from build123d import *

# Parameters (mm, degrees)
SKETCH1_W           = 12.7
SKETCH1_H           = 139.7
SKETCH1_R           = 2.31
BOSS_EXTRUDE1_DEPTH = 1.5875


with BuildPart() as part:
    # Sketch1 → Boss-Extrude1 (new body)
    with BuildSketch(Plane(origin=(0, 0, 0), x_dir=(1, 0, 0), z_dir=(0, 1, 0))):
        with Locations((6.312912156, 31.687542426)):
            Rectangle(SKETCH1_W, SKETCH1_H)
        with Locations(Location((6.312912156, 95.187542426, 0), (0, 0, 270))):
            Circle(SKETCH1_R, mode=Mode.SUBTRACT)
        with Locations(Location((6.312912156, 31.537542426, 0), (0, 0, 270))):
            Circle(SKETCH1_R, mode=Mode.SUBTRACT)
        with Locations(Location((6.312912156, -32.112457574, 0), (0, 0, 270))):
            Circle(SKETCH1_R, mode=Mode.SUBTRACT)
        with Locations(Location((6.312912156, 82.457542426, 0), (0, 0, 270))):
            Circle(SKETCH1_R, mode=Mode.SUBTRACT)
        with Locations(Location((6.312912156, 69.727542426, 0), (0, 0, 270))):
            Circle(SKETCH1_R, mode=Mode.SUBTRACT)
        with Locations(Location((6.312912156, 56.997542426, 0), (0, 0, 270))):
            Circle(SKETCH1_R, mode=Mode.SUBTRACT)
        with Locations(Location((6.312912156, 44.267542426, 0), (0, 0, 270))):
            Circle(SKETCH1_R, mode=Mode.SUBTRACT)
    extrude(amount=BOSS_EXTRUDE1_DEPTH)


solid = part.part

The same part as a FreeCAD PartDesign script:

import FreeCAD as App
import Part
import Sketcher

V = App.Vector
Q = App.Units.Quantity


def add_polygon(sketch, points):
    """Adds a closed chain of lines whose ends are joined by coincident constraints."""
    first, n = sketch.GeometryCount, len(points)
    for a, b in zip(points, points[1:] + points[:1]):
        sketch.addGeometry(Part.LineSegment(App.Vector(*a, 0), App.Vector(*b, 0)), False)
    for i in range(n):
        sketch.addConstraint(Sketcher.Constraint("Coincident", first + i, 2, first + (i + 1) % n, 1))

doc = App.newDocument("Part")
body = doc.addObject("PartDesign::Body", "Body")

sketch1 = body.newObject("Sketcher::SketchObject", "Sketch")
sketch1.AttachmentSupport = (doc.getObject("XZ_Plane"), [""])
sketch1.MapMode = "FlatFace"
add_polygon(sketch1, [(0, -101.5), (0, 38.2), (12.7, 38.2), (12.7, -101.5)])
sketch1.addGeometry(Part.Circle(V(6.3, 32.1, 0), V(0, 0, 1), 2.3), False)
sketch1.addGeometry(Part.Circle(V(6.3, -31.5, 0), V(0, 0, 1), 2.3), False)
sketch1.addGeometry(Part.Circle(V(6.3, -44.3, 0), V(0, 0, 1), 2.3), False)
sketch1.addGeometry(Part.Circle(V(6.3, -57, 0), V(0, 0, 1), 2.3), False)
sketch1.addGeometry(Part.Circle(V(6.3, -69.7, 0), V(0, 0, 1), 2.3), False)
sketch1.addGeometry(Part.Circle(V(6.3, -82.5, 0), V(0, 0, 1), 2.3), False)
sketch1.addGeometry(Part.Circle(V(6.3, -95.2, 0), V(0, 0, 1), 2.3), False)
sketch1.addConstraint(Sketcher.Constraint("Vertical", 0))
sketch1.addConstraint(Sketcher.Constraint("Horizontal", 1))
sketch1.addConstraint(Sketcher.Constraint("Vertical", 2))
sketch1.addConstraint(Sketcher.Constraint("Horizontal", 3))
sketch1.addConstraint(Sketcher.Constraint("Equal", 4, 5))
sketch1.addConstraint(Sketcher.Constraint("Equal", 5, 6))
sketch1.addConstraint(Sketcher.Constraint("Equal", 6, 7))
sketch1.addConstraint(Sketcher.Constraint("Equal", 7, 8))
sketch1.addConstraint(Sketcher.Constraint("Equal", 8, 9))
sketch1.addConstraint(Sketcher.Constraint("Equal", 9, 10))
sketch1.addConstraint(Sketcher.Constraint("Vertical", 4, 3, 5, 3))
sketch1.addConstraint(Sketcher.Constraint("Vertical", 5, 3, 6, 3))
sketch1.addConstraint(Sketcher.Constraint("Vertical", 6, 3, 7, 3))
sketch1.addConstraint(Sketcher.Constraint("Vertical", 7, 3, 8, 3))
sketch1.addConstraint(Sketcher.Constraint("Vertical", 8, 3, 9, 3))
sketch1.addConstraint(Sketcher.Constraint("Vertical", 9, 3, 10, 3))
sketch1.addConstraint(Sketcher.Constraint("DistanceX", 1, 1, 1, 2, Q("0.5 in")))
sketch1.addConstraint(Sketcher.Constraint("DistanceY", 0, 1, 0, 2, Q("5.5 in")))
sketch1.addConstraint(Sketcher.Constraint("Diameter", 4, 4.62))
sketch1.addConstraint(Sketcher.Constraint("DistanceX", 0, 2, 4, 3, Q("0.25 in")))
sketch1.addConstraint(Sketcher.Constraint("DistanceY", 2, 2, 10, 3, Q("0.25 in")))
sketch1.addConstraint(Sketcher.Constraint("DistanceY", 5, 3, 4, 3, 63.65))
sketch1.addConstraint(Sketcher.Constraint("DistanceY", 6, 3, 5, 3, 12.73))
sketch1.addConstraint(Sketcher.Constraint("DistanceY", 7, 3, 6, 3, 12.73))
sketch1.addConstraint(Sketcher.Constraint("DistanceY", 8, 3, 7, 3, 12.73))
sketch1.addConstraint(Sketcher.Constraint("DistanceY", 9, 3, 8, 3, 12.73))
sketch1.addConstraint(Sketcher.Constraint("DistanceY", 10, 3, 9, 3, 12.73))
sketch1.addConstraint(Sketcher.Constraint("DistanceX", -1, 1, 4, 3, 6.312912))
sketch1.addConstraint(Sketcher.Constraint("DistanceY", -1, 1, 4, 3, 32.112458))
pad1 = body.newObject("PartDesign::Pad", "Pad")
pad1.Profile = sketch1
pad1.Length = Q("0.0625 in")
pad1.Reversed = True

doc.recompute()
